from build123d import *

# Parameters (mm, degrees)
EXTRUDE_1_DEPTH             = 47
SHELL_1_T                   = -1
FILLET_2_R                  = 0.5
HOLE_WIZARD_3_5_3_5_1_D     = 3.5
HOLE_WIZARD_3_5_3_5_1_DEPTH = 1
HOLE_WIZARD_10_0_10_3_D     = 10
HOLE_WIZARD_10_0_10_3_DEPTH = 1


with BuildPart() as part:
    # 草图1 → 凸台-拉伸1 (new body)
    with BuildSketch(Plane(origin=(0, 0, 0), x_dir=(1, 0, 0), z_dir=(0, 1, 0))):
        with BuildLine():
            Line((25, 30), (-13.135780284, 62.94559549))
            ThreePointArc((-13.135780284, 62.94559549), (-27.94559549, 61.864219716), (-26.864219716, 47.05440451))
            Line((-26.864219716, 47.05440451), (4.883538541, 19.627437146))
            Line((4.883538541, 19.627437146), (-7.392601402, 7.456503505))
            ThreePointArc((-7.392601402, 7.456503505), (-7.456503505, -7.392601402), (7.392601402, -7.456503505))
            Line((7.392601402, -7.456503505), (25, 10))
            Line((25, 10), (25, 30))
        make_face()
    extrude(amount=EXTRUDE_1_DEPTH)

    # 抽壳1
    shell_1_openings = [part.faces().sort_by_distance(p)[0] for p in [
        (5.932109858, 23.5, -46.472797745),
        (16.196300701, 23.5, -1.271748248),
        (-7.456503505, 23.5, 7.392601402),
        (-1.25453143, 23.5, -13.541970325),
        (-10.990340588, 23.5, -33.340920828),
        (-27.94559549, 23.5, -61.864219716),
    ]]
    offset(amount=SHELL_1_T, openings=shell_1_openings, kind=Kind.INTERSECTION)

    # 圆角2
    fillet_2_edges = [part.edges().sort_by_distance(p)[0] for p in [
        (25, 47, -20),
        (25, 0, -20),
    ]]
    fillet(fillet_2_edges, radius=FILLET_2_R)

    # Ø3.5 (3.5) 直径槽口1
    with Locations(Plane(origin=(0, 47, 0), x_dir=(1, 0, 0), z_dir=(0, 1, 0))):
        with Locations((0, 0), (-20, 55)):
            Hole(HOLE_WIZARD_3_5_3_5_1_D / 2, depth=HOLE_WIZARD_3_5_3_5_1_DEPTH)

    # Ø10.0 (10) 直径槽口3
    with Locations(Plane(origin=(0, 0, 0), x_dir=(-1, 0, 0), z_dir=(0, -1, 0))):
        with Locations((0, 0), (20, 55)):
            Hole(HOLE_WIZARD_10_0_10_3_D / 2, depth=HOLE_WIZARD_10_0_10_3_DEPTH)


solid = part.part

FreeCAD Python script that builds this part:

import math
import FreeCAD as App
import Part
import Sketcher
from FreeCAD import Vector
Q = App.Units.Quantity


def edges_at(feature, points):
    """Names of the edges that pass closest to the given points."""
    edges = feature.Shape.Edges
    near = lambda p: min(range(len(edges)), key=lambda i: edges[i].distToShape(Part.Vertex(*p))[0])
    return sorted({f"Edge{near(p) + 1}" for p in points})


def faces_at(feature, points):
    """Names of the faces that lie closest to the given points."""
    faces = feature.Shape.Faces
    near = lambda p: min(range(len(faces)), key=lambda i: faces[i].distToShape(Part.Vertex(*p))[0])
    return sorted({f"Face{near(p) + 1}" for p in points})

doc = App.newDocument("Part")
body = doc.addObject("PartDesign::Body", "Body")

# Sketch on XZ plane
sketch1 = body.newObject("Sketcher::SketchObject", "Sketch")
sketch1.AttachmentSupport = (doc.getObject("XZ_Plane"), [""])
sketch1.MapMode = "FlatFace"
sketch1.addGeometry([
    Part.LineSegment(Vector(25, -30, 0), Vector(-13, -63, 0)),  # 0
    Part.ArcOfCircle(Part.Circle(Vector(-20, -55, 0), Vector(0, 0, 1), 10), math.radians(131), math.radians(311)),  # 1
    Part.LineSegment(Vector(-27, -47, 0), Vector(5, -20, 0)),  # 2
    Part.LineSegment(Vector(5, -20, 0), Vector(-7, -7, 0)),  # 3
    Part.ArcOfCircle(Part.Circle(Vector(0, 0, 0), Vector(0, 0, 1), 10), math.radians(45), math.radians(225)),  # 4
    Part.LineSegment(Vector(7, 7, 0), Vector(25, -10, 0)),  # 5
    Part.LineSegment(Vector(25, -10, 0), Vector(25, -30, 0)),  # 6
], False)
sketch1.addConstraint([
    Sketcher.Constraint("Tangent", 0, 2, 1, 2),
    Sketcher.Constraint("Tangent", 1, 1, 2, 1),
    Sketcher.Constraint("Coincident", 2, 2, 3, 1),
    Sketcher.Constraint("Tangent", 3, 2, 4, 2),
    Sketcher.Constraint("Tangent", 4, 1, 5, 1),
    Sketcher.Constraint("Coincident", 5, 2, 6, 1),
    Sketcher.Constraint("Coincident", 6, 2, 0, 1),
    Sketcher.Constraint("Vertical", 6),
    Sketcher.Constraint("Coincident", 4, 3, -1, 1),
    Sketcher.Constraint("Equal", 1, 4),
    Sketcher.Constraint("Parallel", 0, 2),
    Sketcher.Constraint("Parallel", 3, 5),
    Sketcher.Constraint("Radius", 1, Q("10.5 mm")),
    Sketcher.Constraint("DistanceY", 6, 2, 6, 1, Q("20 mm")),
    Sketcher.Constraint("DistanceX", 1, 3, -1, 1, Q("20 mm")),
    Sketcher.Constraint("DistanceY", 1, 3, -1, 1, Q("55 mm")),
    Sketcher.Constraint("DistanceX", -1, 1, 5, 2, Q("25 mm")),
    Sketcher.Constraint("DistanceY", 5, 2, -1, 1, Q("10 mm")),
])
pad1 = body.newObject("PartDesign::Pad", "Pad")
pad1.Profile = sketch1
pad1.Length = 47
pad1.Reversed = True
doc.recompute()

thickness = body.newObject("PartDesign::Thickness", "Thickness")
thickness.Base = (pad1, faces_at(pad1, [
    (5.932, 23.5, -46.473),
    (16.196, 23.5, -1.272),
    (-7.457, 23.5, 7.393),
    (-1.255, 23.5, -13.542),
    (-10.99, 23.5, -33.341),
    (-27.946, 23.5, -61.864),
]))
thickness.Value = 1
thickness.Reversed = True
thickness.Join = "Intersection"
doc.recompute()

fillet = body.newObject("PartDesign::Fillet", "Fillet")
fillet.Base = (thickness, edges_at(thickness, [(25, 47, -20), (25, 0, -20)]))
fillet.Radius = 0.5

# Sketch on XZ plane
sketch2 = body.newObject("Sketcher::SketchObject", "Sketch001")
sketch2.AttachmentSupport = (doc.getObject("XZ_Plane"), [""])
sketch2.MapMode = "FlatFace"
sketch2.AttachmentOffset = App.Placement(Vector(0, 0, -47), App.Rotation())
sketch2.addGeometry([
    Part.Circle(Vector(0, 0, 0), Vector(0, 0, 1), 1.8),
    Part.Circle(Vector(-20, -55, 0), Vector(0, 0, 1), 1.8),
], False)
sketch2.addConstraint([
    Sketcher.Constraint("Coincident", 0, 3, -1, 1),
    Sketcher.Constraint("Equal", 0, 1),
    Sketcher.Constraint("Diameter", 0, Q("3.5 mm")),
    Sketcher.Constraint("DistanceX", 1, 3, -1, 1, Q("20 mm")),
    Sketcher.Constraint("DistanceY", 1, 3, -1, 1, Q("55 mm")),
])
doc.recompute()
hole = body.newObject("PartDesign::Hole", "Hole")
hole.Profile = sketch2
hole.ThreadType = "None"
hole.Diameter = 3.5
hole.DepthType = "Dimension"
hole.Depth = 1
hole.DrillPoint = "Flat"
hole.Reversed = True

# Sketch on XZ plane
sketch3 = body.newObject("Sketcher::SketchObject", "Sketch002")
sketch3.AttachmentSupport = (doc.getObject("XZ_Plane"), [""])
sketch3.MapMode = "FlatFace"
sketch3.addGeometry([
    Part.Circle(Vector(0, 0, 0), Vector(0, 0, 1), 5),
    Part.Circle(Vector(-20, -55, 0), Vector(0, 0, 1), 5),
], False)
sketch3.addConstraint([
    Sketcher.Constraint("Coincident", 0, 3, -1, 1),
    Sketcher.Constraint("Equal", 0, 1),
    Sketcher.Constraint("Diameter", 0, Q("10 mm")),
    Sketcher.Constraint("DistanceX", 1, 3, -1, 1, Q("20 mm")),
    Sketcher.Constraint("DistanceY", 1, 3, -1, 1, Q("55 mm")),
])
doc.recompute()
hole2 = body.newObject("PartDesign::Hole", "Hole001")
hole2.Profile = sketch3
hole2.ThreadType = "None"
hole2.Diameter = 10
hole2.DepthType = "Dimension"
hole2.Depth = 1
hole2.DrillPoint = "Flat"

doc.recompute()
